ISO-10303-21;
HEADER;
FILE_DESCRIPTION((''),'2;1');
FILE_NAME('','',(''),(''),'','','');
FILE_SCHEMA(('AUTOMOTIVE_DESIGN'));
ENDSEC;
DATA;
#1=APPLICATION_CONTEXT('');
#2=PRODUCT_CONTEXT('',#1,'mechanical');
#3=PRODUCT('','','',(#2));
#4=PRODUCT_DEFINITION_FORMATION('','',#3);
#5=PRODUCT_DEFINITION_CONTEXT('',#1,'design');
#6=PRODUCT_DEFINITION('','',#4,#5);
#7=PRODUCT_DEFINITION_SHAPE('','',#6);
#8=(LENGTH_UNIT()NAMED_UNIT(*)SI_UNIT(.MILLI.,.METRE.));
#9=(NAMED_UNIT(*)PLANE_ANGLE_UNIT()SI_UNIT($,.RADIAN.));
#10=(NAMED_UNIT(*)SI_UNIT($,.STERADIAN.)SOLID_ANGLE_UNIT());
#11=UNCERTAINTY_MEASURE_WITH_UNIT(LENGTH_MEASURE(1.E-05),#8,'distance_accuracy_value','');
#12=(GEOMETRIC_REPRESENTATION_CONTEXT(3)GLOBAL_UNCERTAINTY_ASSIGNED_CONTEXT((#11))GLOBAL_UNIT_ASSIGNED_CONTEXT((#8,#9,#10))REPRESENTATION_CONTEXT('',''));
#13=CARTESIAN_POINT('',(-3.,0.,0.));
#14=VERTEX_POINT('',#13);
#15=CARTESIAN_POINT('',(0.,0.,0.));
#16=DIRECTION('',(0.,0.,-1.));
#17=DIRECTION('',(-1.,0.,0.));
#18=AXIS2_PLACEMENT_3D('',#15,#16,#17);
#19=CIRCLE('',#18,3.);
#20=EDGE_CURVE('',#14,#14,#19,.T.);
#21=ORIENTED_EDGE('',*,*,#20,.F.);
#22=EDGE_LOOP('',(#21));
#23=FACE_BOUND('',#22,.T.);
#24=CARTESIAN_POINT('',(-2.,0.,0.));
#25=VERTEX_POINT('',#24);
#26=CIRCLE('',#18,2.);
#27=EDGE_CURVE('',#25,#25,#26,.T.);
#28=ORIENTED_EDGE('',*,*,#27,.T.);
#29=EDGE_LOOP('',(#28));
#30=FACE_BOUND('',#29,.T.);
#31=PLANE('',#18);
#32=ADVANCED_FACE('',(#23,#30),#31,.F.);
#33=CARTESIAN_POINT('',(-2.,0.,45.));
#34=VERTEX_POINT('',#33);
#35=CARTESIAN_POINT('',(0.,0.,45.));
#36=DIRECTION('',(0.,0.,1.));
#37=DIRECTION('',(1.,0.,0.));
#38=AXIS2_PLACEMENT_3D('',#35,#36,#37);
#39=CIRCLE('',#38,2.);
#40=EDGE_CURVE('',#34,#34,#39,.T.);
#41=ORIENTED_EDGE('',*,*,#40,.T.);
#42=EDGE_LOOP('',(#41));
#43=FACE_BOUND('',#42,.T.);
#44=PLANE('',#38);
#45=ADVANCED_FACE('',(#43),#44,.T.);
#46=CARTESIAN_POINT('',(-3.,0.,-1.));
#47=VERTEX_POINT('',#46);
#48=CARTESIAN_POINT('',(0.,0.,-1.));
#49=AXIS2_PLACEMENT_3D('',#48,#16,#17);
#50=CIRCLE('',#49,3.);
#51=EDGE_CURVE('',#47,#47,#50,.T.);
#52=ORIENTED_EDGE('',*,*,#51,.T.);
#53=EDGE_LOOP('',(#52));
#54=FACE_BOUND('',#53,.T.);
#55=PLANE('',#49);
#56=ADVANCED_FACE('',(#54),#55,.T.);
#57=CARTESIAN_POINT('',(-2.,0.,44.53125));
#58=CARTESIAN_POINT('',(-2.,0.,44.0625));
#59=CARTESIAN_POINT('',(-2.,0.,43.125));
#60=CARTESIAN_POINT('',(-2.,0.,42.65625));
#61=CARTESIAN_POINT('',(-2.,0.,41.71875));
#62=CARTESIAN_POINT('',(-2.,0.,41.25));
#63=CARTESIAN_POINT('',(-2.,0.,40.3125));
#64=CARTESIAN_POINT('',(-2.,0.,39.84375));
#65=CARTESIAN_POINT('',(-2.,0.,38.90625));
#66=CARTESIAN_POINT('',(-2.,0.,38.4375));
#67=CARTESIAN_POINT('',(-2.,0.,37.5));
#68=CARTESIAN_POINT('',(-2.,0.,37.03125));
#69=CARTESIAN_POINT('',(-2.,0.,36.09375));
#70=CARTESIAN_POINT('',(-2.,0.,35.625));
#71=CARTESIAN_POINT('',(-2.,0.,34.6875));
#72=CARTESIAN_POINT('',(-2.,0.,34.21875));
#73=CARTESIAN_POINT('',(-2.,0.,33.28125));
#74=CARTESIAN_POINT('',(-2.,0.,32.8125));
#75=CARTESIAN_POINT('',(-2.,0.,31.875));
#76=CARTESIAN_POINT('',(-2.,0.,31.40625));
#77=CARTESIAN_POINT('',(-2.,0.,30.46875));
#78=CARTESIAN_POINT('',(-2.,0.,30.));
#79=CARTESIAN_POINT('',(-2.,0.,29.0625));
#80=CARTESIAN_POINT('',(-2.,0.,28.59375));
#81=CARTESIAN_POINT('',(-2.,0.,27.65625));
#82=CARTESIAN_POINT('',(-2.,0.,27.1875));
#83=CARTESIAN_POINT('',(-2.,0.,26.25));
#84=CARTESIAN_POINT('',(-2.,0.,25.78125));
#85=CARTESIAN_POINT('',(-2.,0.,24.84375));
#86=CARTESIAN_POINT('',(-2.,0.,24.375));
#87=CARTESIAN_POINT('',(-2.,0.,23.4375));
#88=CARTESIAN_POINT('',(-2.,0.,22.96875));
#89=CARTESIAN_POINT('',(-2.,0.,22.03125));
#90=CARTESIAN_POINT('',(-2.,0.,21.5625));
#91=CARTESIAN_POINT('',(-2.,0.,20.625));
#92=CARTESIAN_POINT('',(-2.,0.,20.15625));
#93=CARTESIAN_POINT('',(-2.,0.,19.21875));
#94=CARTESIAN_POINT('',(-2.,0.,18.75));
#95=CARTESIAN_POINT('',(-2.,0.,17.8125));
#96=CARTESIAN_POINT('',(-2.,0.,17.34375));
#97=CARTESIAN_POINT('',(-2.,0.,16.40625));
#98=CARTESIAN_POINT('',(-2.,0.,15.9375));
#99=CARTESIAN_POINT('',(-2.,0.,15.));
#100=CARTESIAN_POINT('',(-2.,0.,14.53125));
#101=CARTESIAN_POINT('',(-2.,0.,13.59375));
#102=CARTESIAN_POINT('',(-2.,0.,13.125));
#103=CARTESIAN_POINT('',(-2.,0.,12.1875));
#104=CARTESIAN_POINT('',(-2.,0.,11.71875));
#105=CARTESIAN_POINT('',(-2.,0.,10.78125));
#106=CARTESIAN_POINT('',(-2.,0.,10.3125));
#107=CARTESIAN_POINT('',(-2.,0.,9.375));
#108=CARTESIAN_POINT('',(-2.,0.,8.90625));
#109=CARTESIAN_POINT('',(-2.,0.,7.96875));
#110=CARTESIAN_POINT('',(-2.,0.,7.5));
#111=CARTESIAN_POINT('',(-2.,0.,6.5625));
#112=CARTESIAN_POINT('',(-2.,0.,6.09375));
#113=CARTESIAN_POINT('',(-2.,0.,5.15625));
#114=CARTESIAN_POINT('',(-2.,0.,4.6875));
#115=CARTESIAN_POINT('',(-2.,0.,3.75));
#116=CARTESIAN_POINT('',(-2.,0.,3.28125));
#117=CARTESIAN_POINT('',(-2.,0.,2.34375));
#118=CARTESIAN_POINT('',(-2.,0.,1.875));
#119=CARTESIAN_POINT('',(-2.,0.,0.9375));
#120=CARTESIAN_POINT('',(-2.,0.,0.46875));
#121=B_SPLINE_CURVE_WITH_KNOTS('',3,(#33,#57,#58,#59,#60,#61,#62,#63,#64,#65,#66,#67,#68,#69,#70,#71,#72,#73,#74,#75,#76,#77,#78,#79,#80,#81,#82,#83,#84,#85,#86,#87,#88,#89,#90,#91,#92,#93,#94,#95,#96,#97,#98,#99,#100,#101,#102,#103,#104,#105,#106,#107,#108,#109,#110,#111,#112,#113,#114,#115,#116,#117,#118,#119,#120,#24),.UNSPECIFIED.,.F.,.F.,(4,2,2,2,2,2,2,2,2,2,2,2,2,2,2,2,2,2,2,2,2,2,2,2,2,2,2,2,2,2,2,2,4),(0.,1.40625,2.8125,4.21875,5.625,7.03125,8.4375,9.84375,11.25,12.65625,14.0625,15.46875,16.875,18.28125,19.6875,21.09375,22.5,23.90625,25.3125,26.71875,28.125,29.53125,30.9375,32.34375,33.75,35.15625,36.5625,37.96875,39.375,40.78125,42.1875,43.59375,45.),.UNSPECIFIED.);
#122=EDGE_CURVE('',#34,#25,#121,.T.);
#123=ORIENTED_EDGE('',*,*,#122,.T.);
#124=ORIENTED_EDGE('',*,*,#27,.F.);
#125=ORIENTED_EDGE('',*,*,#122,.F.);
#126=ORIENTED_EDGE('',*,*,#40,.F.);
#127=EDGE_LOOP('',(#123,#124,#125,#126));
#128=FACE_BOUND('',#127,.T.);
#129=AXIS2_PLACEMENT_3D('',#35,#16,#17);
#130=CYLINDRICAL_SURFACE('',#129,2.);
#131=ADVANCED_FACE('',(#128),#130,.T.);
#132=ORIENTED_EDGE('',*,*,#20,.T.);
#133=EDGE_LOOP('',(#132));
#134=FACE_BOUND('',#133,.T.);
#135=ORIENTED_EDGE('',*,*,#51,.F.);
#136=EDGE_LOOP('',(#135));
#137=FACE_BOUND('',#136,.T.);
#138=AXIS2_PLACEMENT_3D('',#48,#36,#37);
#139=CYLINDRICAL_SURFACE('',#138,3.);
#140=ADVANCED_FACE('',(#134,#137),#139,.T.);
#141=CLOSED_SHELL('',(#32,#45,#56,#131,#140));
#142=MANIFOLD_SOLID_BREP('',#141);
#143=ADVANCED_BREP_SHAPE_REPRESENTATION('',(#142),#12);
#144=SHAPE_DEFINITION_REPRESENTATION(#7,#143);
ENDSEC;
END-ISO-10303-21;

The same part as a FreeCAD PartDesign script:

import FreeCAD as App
import Part
import Sketcher
Q = App.Units.Quantity

doc = App.newDocument("Part")
body = doc.addObject("PartDesign::Body", "Body")

# Sketch on XY plane
sketch1 = body.newObject("Sketcher::SketchObject", "Sketch")
sketch1.AttachmentSupport = (doc.getObject("XY_Plane"), [""])
sketch1.MapMode = "FlatFace"
sketch1.addGeometry(Part.Circle(App.Vector(0, 0, 0), App.Vector(0, 0, 1), 2), False)
sketch1.addConstraint([
    Sketcher.Constraint("Coincident", 0, 3, -1, 1),
    Sketcher.Constraint("Diameter", 0, Q("4 mm")),
])
pad1 = body.newObject("PartDesign::Pad", "Pad")
pad1.Profile = sketch1
pad1.Length = 45

# Sketch on XY plane
sketch2 = body.newObject("Sketcher::SketchObject", "Sketch001")
sketch2.AttachmentSupport = (doc.getObject("XY_Plane"), [""])
sketch2.MapMode = "FlatFace"
sketch2.addGeometry(Part.Circle(App.Vector(0, 0, 0), App.Vector(0, 0, 1), 3), False)
sketch2.addConstraint([
    Sketcher.Constraint("Coincident", 0, 3, -1, 1),
    Sketcher.Constraint("Diameter", 0, Q("6 mm")),
])
pad2 = body.newObject("PartDesign::Pad", "Pad001")
pad2.Profile = sketch2
pad2.Length = 1
pad2.Reversed = True

doc.recompute()
